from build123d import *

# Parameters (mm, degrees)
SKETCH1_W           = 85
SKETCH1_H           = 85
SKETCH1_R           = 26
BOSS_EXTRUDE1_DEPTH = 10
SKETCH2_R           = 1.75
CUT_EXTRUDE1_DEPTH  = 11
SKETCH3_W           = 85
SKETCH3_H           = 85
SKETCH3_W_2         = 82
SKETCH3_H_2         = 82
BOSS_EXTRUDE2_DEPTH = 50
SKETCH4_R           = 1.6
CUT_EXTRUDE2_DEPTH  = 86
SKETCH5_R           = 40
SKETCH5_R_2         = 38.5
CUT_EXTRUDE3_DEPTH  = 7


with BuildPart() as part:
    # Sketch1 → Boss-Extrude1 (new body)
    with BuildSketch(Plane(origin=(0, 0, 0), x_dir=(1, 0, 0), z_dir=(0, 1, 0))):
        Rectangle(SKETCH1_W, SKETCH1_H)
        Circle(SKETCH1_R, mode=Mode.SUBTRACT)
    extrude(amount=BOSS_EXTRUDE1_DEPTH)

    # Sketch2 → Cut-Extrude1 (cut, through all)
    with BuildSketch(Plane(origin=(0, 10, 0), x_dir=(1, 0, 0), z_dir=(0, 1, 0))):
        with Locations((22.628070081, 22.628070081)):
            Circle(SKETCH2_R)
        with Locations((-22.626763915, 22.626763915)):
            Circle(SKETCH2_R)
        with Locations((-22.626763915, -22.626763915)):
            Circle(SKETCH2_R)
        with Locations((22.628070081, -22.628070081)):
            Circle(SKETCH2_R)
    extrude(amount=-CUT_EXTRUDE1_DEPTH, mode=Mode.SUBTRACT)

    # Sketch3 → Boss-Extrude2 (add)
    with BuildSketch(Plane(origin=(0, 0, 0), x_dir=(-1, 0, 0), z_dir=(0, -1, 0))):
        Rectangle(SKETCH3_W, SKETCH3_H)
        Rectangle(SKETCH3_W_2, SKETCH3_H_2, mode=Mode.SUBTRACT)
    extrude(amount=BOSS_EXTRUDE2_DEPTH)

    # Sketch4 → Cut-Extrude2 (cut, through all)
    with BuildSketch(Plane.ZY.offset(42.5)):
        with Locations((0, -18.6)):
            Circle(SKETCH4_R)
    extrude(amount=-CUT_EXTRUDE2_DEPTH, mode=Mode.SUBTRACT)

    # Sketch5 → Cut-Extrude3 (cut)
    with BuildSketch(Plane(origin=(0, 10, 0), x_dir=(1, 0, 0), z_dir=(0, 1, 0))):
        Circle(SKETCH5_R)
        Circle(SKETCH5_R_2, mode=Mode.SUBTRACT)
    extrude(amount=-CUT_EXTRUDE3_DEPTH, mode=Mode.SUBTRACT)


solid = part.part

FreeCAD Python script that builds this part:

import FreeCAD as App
import Part
import Sketcher


def add_polygon(sketch, points):
    """Adds a closed chain of lines whose ends are joined by coincident constraints."""
    first, n = sketch.GeometryCount, len(points)
    for a, b in zip(points, points[1:] + points[:1]):
        sketch.addGeometry(Part.LineSegment(App.Vector(*a, 0), App.Vector(*b, 0)), False)
    for i in range(n):
        sketch.addConstraint(Sketcher.Constraint("Coincident", first + i, 2, first + (i + 1) % n, 1))

doc = App.newDocument("Part")
body = doc.addObject("PartDesign::Body", "Body")

# Sketch on XZ plane
sketch1 = doc.addObject("Sketcher::SketchObject", "Sketch")
body.addObject(sketch1)
sketch1.AttachmentSupport = (doc.XZ_Plane, [""])
sketch1.MapMode = "FlatFace"
add_polygon(sketch1, [(-42.5, -42.5), (-42.5, 42.5), (42.5, 42.5), (42.5, -42.5)])  # lines 0-3
sketch1.addGeometry(Part.Circle(App.Vector(0, 0, 0), App.Vector(0, 0, 1), 26), False)  # 4
sketch1.addConstraint(Sketcher.Constraint("Vertical", 0))
sketch1.addConstraint(Sketcher.Constraint("Horizontal", 1))
sketch1.addConstraint(Sketcher.Constraint("Vertical", 2))
sketch1.addConstraint(Sketcher.Constraint("Horizontal", 3))
sketch1.addConstraint(Sketcher.Constraint("Coincident", 4, 3, -1, 1))
sketch1.addConstraint(Sketcher.Constraint("Symmetric", 0, 2, 2, 2, -1, 1))
sketch1.addConstraint(Sketcher.Constraint("Equal", 3, 0))
sketch1.addConstraint(Sketcher.Constraint("Diameter", 4, 52.0))
sketch1.addConstraint(Sketcher.Constraint("DistanceX", 1, 1, 1, 2, 85.0))
pad1 = doc.addObject("PartDesign::Pad", "Pad")
body.addObject(pad1)
pad1.Profile = sketch1
pad1.Length = 10
pad1.Reversed = True

# Sketch on XZ plane
sketch2 = doc.addObject("Sketcher::SketchObject", "Sketch001")
body.addObject(sketch2)
sketch2.AttachmentSupport = (doc.XZ_Plane, [""])
sketch2.MapMode = "FlatFace"
sketch2.AttachmentOffset = App.Placement(App.Vector(0, 0, -10), App.Rotation())
sketch2.addGeometry(Part.Circle(App.Vector(22.62807, -22.62807, 0), App.Vector(0, 0, 1), 1.75), False)
sketch2.addGeometry(Part.Circle(App.Vector(-22.626764, -22.626764, 0), App.Vector(0, 0, 1), 1.75), False)
sketch2.addGeometry(Part.Circle(App.Vector(-22.626764, 22.626764, 0), App.Vector(0, 0, 1), 1.75), False)
sketch2.addGeometry(Part.Circle(App.Vector(22.62807, 22.62807, 0), App.Vector(0, 0, 1), 1.75), False)
sketch2.addConstraint(Sketcher.Constraint("Equal", 0, 1))
sketch2.addConstraint(Sketcher.Constraint("Equal", 1, 2))
sketch2.addConstraint(Sketcher.Constraint("Equal", 2, 3))
sketch2.addConstraint(Sketcher.Constraint("Symmetric", 1, 3, 2, 3, -1))
sketch2.addConstraint(Sketcher.Constraint("Symmetric", 0, 3, 3, 3, -1))
sketch2.addConstraint(Sketcher.Constraint("Diameter", 0, 3.5))
sketch2.addConstraint(Sketcher.Constraint("DistanceX", -1, 1, 0, 3, 22.62807))
sketch2.addConstraint(Sketcher.Constraint("DistanceY", 0, 3, -1, 1, 22.62807))
sketch2.addConstraint(Sketcher.Constraint("DistanceX", 1, 3, -1, 1, 22.626764))
sketch2.addConstraint(Sketcher.Constraint("DistanceY", 1, 3, -1, 1, 22.626764))
pocket1 = doc.addObject("PartDesign::Pocket", "Pocket")
body.addObject(pocket1)
pocket1.Profile = sketch2
pocket1.Type = "ThroughAll"
pocket1.Reversed = True

# Sketch on XZ plane
sketch3 = doc.addObject("Sketcher::SketchObject", "Sketch002")
body.addObject(sketch3)
sketch3.AttachmentSupport = (doc.XZ_Plane, [""])
sketch3.MapMode = "FlatFace"
add_polygon(sketch3, [(42.5, -42.5), (42.5, 42.5), (-42.5, 42.5), (-42.5, -42.5)])  # lines 0-3
add_polygon(sketch3, [(-41, 41), (41, 41), (41, -41), (-41, -41)])  # lines 4-7
sketch3.addConstraint(Sketcher.Constraint("Vertical", 0))
sketch3.addConstraint(Sketcher.Constraint("Horizontal", 1))
sketch3.addConstraint(Sketcher.Constraint("Vertical", 2))
sketch3.addConstraint(Sketcher.Constraint("Horizontal", 3))
sketch3.addConstraint(Sketcher.Constraint("Horizontal", 4))
sketch3.addConstraint(Sketcher.Constraint("Vertical", 5))
sketch3.addConstraint(Sketcher.Constraint("Horizontal", 6))
sketch3.addConstraint(Sketcher.Constraint("Vertical", 7))
sketch3.addConstraint(Sketcher.Constraint("Symmetric", 0, 2, 2, 2, -1, 1))
sketch3.addConstraint(Sketcher.Constraint("Symmetric", 4, 2, 6, 2, -1, 1))
sketch3.addConstraint(Sketcher.Constraint("Equal", 3, 0))
sketch3.addConstraint(Sketcher.Constraint("Equal", 6, 5))
sketch3.addConstraint(Sketcher.Constraint("DistanceX", 1, 2, 1, 1, 85.0))
sketch3.addConstraint(Sketcher.Constraint("DistanceX", 4, 1, 4, 2, 82.0))
pad2 = doc.addObject("PartDesign::Pad", "Pad001")
body.addObject(pad2)
pad2.Profile = sketch3
pad2.Length = 50

# Sketch on YZ plane
sketch4 = doc.addObject("Sketcher::SketchObject", "Sketch003")
body.addObject(sketch4)
sketch4.AttachmentSupport = (doc.YZ_Plane, [""])
sketch4.MapMode = "FlatFace"
sketch4.AttachmentOffset = App.Placement(App.Vector(0, 0, -42.5), App.Rotation())
sketch4.addGeometry(Part.Circle(App.Vector(-18.6, 0, 0), App.Vector(0, 0, 1), 1.6), False)
sketch4.addConstraint(Sketcher.Constraint("PointOnObject", 0, 3, -1))
sketch4.addConstraint(Sketcher.Constraint("Diameter", 0, 3.2))
sketch4.addConstraint(Sketcher.Constraint("DistanceX", 0, 3, -1, 1, 18.6))
pocket2 = doc.addObject("PartDesign::Pocket", "Pocket001")
body.addObject(pocket2)
pocket2.Profile = sketch4
pocket2.Type = "ThroughAll"
pocket2.Reversed = True

# Sketch on XZ plane
sketch5 = doc.addObject("Sketcher::SketchObject", "Sketch004")
body.addObject(sketch5)
sketch5.AttachmentSupport = (doc.XZ_Plane, [""])
sketch5.MapMode = "FlatFace"
sketch5.AttachmentOffset = App.Placement(App.Vector(0, 0, -10), App.Rotation())
sketch5.addGeometry(Part.Circle(App.Vector(0, 0, 0), App.Vector(0, 0, 1), 40), False)
sketch5.addGeometry(Part.Circle(App.Vector(0, 0, 0), App.Vector(0, 0, 1), 38.5), False)
sketch5.addConstraint(Sketcher.Constraint("Coincident", 0, 3, -1, 1))
sketch5.addConstraint(Sketcher.Constraint("Coincident", 1, 3, -1, 1))
sketch5.addConstraint(Sketcher.Constraint("Diameter", 0, 80.0))
sketch5.addConstraint(Sketcher.Constraint("Diameter", 1, 77.0))
pocket3 = doc.addObject("PartDesign::Pocket", "Pocket002")
body.addObject(pocket3)
pocket3.Profile = sketch5
pocket3.Length = 7
pocket3.Reversed = True

doc.recompute()
